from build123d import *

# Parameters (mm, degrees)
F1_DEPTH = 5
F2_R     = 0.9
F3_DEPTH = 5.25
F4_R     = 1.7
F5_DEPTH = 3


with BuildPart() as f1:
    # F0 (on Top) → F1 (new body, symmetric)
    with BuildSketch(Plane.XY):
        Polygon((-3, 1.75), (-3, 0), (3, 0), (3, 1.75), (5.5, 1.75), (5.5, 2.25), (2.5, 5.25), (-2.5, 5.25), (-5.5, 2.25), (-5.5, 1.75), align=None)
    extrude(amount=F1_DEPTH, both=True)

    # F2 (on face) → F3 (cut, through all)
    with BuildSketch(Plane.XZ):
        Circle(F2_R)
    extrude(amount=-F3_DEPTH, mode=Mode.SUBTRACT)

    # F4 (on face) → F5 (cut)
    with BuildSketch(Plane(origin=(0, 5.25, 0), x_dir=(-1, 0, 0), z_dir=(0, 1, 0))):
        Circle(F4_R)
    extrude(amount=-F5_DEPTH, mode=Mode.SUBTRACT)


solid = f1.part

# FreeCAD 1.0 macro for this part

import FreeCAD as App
import Part
import Sketcher
from FreeCAD import Vector

doc = App.newDocument("Part")
params = doc.addObject("Spreadsheet::Sheet", "Params")
for row, (alias, value) in enumerate([
    ("sketch1_width", "6 mm"),
    ("sketch1_width2", "5 mm"),
    ("sketch1_width3", "2.5 mm"),
    ("sketch1_height", "0.5 mm"),
    ("sketch1_height2", "1.75 mm"),
    ("pad1_length", "10 mm"),
    ("sketch2_diameter", "1.8 mm"),
    ("sketch3_diameter", "3.4 mm"),
    ("pocket2_length", "3 mm"),
], start=1):
    params.set(f"A{row}", alias)
    params.set(f"B{row}", "=" + value)
    params.setAlias(f"B{row}", alias)

body = doc.addObject("PartDesign::Body", "Body")

# Sketch on XY plane
sketch1 = body.newObject("Sketcher::SketchObject", "Sketch")
sketch1.AttachmentSupport = (doc.getObject("XY_Plane"), [""])
sketch1.MapMode = "FlatFace"
sketch1.addGeometry(Part.LineSegment(Vector(-3, 1.8, 0), Vector(-3, 0, 0)), False)
sketch1.addGeometry(Part.LineSegment(Vector(-3, 0, 0), Vector(3, 0, 0)), False)
sketch1.addGeometry(Part.LineSegment(Vector(3, 0, 0), Vector(3, 1.8, 0)), False)
sketch1.addGeometry(Part.LineSegment(Vector(3, 1.8, 0), Vector(5.5, 1.8, 0)), False)
sketch1.addGeometry(Part.LineSegment(Vector(5.5, 1.8, 0), Vector(5.5, 2.2, 0)), False)
sketch1.addGeometry(Part.LineSegment(Vector(5.5, 2.2, 0), Vector(2.5, 5.2, 0)), False)
sketch1.addGeometry(Part.LineSegment(Vector(2.5, 5.2, 0), Vector(-2.5, 5.2, 0)), False)
sketch1.addGeometry(Part.LineSegment(Vector(-2.5, 5.2, 0), Vector(-5.5, 2.2, 0)), False)
sketch1.addGeometry(Part.LineSegment(Vector(-5.5, 2.2, 0), Vector(-5.5, 1.8, 0)), False)
sketch1.addGeometry(Part.LineSegment(Vector(-5.5, 1.8, 0), Vector(-3, 1.8, 0)), False)
sketch1.addConstraint(Sketcher.Constraint("Coincident", 0, 2, 1, 1))
sketch1.addConstraint(Sketcher.Constraint("Coincident", 1, 2, 2, 1))
sketch1.addConstraint(Sketcher.Constraint("Coincident", 2, 2, 3, 1))
sketch1.addConstraint(Sketcher.Constraint("Coincident", 3, 2, 4, 1))
sketch1.addConstraint(Sketcher.Constraint("Coincident", 4, 2, 5, 1))
sketch1.addConstraint(Sketcher.Constraint("Coincident", 5, 2, 6, 1))
sketch1.addConstraint(Sketcher.Constraint("Coincident", 6, 2, 7, 1))
sketch1.addConstraint(Sketcher.Constraint("Coincident", 7, 2, 8, 1))
sketch1.addConstraint(Sketcher.Constraint("Coincident", 8, 2, 9, 1))
sketch1.addConstraint(Sketcher.Constraint("Coincident", 9, 2, 0, 1))
sketch1.addConstraint(Sketcher.Constraint("Vertical", 0))
sketch1.addConstraint(Sketcher.Constraint("Horizontal", 1))
sketch1.addConstraint(Sketcher.Constraint("Vertical", 2))
sketch1.addConstraint(Sketcher.Constraint("Horizontal", 3))
sketch1.addConstraint(Sketcher.Constraint("Vertical", 4))
sketch1.addConstraint(Sketcher.Constraint("Horizontal", 6))
sketch1.addConstraint(Sketcher.Constraint("Vertical", 8))
sketch1.addConstraint(Sketcher.Constraint("Horizontal", 9))
sketch1.addConstraint(Sketcher.Constraint("Symmetric", 0, 2, 1, 2, -1, 1))
sketch1.addConstraint(Sketcher.Constraint("Symmetric", 4, 2, 7, 2, -2))
sketch1.addConstraint(Sketcher.Constraint("Perpendicular", 5, 7))
sketch1.addConstraint(Sketcher.Constraint("Horizontal", 3, 2, 8, 2))
sketch1.addConstraint(Sketcher.Constraint("Equal", 5, 7))
sketch1.addConstraint(Sketcher.Constraint("DistanceX", 1, 1, 1, 2, 6.0))
sketch1.addConstraint(Sketcher.Constraint("DistanceX", 6, 2, 6, 1, 5.0))
sketch1.addConstraint(Sketcher.Constraint("DistanceX", 3, 1, 3, 2, 2.5))
sketch1.addConstraint(Sketcher.Constraint("DistanceY", 4, 1, 4, 2, 0.5))
sketch1.addConstraint(Sketcher.Constraint("DistanceY", 0, 2, 0, 1, 1.75))
sketch1.setExpression("Constraints[23]", "Params.sketch1_width")
sketch1.setExpression("Constraints[24]", "Params.sketch1_width2")
sketch1.setExpression("Constraints[25]", "Params.sketch1_width3")
sketch1.setExpression("Constraints[26]", "Params.sketch1_height")
sketch1.setExpression("Constraints[27]", "Params.sketch1_height2")
pad1 = body.newObject("PartDesign::Pad", "Pad")
pad1.Profile = sketch1
pad1.setExpression("Length", "Params.pad1_length")
pad1.Midplane = True

# Sketch on XZ plane
sketch2 = body.newObject("Sketcher::SketchObject", "Sketch001")
sketch2.AttachmentSupport = (doc.getObject("XZ_Plane"), [""])
sketch2.MapMode = "FlatFace"
sketch2.addGeometry(Part.Circle(Vector(0, 0, 0), Vector(0, 0, 1), 0.9), False)
sketch2.addConstraint(Sketcher.Constraint("Coincident", 0, 3, -1, 1))
sketch2.addConstraint(Sketcher.Constraint("Diameter", 0, 1.8))
sketch2.setExpression("Constraints[1]", "Params.sketch2_diameter")
pocket1 = body.newObject("PartDesign::Pocket", "Pocket")
pocket1.Profile = sketch2
pocket1.Type = "ThroughAll"

# Sketch on XZ plane
sketch3 = body.newObject("Sketcher::SketchObject", "Sketch002")
sketch3.AttachmentSupport = (doc.getObject("XZ_Plane"), [""])
sketch3.MapMode = "FlatFace"
sketch3.AttachmentOffset = App.Placement(Vector(0, 0, -5.25), App.Rotation())
sketch3.addGeometry(Part.Circle(Vector(0, 0, 0), Vector(0, 0, 1), 1.7), False)
sketch3.addConstraint(Sketcher.Constraint("Coincident", 0, 3, -1, 1))
sketch3.addConstraint(Sketcher.Constraint("Diameter", 0, 3.4))
sketch3.setExpression("Constraints[1]", "Params.sketch3_diameter")
pocket2 = body.newObject("PartDesign::Pocket", "Pocket001")
pocket2.Profile = sketch3
pocket2.setExpression("Length", "Params.pocket2_length")
pocket2.Reversed = True

doc.recompute()
